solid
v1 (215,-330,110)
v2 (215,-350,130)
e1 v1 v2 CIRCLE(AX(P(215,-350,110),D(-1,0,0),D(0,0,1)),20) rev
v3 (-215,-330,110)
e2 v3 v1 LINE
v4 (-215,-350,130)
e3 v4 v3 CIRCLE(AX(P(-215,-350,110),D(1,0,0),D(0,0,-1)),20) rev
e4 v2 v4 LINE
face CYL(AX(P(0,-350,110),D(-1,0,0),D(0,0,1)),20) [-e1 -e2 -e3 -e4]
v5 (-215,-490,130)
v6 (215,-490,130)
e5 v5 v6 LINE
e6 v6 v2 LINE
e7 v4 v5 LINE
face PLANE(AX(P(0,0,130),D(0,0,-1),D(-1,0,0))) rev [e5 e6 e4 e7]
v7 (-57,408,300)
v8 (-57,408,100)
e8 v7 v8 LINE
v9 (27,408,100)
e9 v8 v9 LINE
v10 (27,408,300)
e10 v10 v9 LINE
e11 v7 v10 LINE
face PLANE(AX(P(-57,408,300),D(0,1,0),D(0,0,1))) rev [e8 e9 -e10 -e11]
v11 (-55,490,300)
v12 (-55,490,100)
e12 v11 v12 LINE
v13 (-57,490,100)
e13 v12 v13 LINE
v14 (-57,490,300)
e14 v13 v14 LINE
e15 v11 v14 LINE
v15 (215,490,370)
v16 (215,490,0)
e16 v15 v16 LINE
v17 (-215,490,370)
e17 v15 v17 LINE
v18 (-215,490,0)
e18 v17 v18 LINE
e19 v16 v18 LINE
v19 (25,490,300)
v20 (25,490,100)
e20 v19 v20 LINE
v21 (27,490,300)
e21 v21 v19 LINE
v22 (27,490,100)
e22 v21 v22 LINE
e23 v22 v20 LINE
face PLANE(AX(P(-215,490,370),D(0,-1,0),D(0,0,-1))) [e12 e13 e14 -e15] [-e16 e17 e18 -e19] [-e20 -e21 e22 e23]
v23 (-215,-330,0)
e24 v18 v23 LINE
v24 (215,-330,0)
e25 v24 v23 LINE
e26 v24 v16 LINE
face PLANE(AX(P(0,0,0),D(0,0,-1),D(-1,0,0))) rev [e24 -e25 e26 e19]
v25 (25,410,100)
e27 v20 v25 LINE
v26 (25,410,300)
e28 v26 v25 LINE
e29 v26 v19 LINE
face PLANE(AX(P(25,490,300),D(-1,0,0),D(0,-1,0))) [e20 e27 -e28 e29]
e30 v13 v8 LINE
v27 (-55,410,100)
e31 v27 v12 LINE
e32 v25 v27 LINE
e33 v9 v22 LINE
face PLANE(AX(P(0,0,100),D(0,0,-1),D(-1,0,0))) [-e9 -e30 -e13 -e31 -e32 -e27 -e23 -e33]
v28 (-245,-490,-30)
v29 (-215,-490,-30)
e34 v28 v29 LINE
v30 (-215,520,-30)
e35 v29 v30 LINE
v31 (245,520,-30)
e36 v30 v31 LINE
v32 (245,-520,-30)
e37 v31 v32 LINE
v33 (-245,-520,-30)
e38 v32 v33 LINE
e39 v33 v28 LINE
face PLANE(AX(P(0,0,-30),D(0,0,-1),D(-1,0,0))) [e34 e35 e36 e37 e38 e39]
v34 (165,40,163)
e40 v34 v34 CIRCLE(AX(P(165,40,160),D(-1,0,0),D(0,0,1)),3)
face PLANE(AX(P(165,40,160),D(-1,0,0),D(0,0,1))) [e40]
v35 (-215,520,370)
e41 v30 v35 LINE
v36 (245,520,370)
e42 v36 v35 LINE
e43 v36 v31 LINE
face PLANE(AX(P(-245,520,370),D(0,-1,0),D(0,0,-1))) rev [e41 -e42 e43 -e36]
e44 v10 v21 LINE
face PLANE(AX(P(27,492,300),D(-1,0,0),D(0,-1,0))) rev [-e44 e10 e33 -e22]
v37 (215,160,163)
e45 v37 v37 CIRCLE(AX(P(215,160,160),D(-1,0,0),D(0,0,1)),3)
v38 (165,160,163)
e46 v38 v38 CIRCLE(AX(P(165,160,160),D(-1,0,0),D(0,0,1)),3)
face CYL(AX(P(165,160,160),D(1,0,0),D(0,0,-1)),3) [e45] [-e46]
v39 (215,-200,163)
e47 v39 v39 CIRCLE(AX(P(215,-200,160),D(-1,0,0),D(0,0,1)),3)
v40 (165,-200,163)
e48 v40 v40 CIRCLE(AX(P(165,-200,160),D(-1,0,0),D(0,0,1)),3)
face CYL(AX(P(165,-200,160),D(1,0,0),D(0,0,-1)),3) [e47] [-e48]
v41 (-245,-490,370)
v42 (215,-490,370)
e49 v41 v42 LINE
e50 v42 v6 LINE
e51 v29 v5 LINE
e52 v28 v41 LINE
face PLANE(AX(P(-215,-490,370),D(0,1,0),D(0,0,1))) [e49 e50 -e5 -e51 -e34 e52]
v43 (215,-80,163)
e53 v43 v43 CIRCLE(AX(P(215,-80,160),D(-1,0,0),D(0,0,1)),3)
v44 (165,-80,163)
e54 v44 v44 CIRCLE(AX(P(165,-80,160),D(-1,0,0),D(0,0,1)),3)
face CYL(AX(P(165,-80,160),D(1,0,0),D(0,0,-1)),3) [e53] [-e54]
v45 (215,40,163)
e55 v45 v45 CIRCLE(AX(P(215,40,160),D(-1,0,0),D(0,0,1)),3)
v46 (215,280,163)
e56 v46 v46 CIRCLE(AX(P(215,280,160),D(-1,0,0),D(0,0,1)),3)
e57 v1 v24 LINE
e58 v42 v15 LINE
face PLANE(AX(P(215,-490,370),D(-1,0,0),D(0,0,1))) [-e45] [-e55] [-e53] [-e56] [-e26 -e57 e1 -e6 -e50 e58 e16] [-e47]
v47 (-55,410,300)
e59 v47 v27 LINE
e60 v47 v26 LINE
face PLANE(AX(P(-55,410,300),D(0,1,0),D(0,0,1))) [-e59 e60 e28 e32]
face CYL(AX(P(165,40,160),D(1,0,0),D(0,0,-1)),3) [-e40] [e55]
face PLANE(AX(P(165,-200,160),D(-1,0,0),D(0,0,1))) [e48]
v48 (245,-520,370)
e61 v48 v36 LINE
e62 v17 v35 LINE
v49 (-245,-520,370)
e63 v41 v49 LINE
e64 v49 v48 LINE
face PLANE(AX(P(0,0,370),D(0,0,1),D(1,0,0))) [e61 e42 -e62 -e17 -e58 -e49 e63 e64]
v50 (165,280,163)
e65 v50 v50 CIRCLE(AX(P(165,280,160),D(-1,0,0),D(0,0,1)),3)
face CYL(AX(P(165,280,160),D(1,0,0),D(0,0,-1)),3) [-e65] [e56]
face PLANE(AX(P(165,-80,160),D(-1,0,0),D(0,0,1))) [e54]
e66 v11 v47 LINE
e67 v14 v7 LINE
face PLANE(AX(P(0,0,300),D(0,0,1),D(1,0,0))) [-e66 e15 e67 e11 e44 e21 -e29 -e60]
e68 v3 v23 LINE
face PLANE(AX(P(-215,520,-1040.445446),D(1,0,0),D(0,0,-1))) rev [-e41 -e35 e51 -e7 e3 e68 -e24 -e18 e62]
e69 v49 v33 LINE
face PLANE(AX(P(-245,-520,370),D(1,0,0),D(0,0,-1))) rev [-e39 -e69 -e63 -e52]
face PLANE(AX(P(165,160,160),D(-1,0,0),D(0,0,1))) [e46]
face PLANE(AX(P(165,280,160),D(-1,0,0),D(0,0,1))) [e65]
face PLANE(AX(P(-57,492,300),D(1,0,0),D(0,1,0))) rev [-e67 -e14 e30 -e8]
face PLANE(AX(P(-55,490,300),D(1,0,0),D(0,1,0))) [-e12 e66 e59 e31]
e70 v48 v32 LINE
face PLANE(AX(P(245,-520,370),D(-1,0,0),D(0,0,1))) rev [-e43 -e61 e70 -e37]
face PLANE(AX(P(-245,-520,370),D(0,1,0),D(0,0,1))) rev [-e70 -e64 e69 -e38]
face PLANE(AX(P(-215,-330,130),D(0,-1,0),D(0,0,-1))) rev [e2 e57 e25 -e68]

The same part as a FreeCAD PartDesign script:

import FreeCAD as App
import Part
import Sketcher
from FreeCAD import Vector
Q = App.Units.Quantity


def edges_at(feature, points):
    """Names of the edges that pass closest to the given points."""
    edges = feature.Shape.Edges
    near = lambda p: min(range(len(edges)), key=lambda i: edges[i].distToShape(Part.Vertex(*p))[0])
    return sorted({f"Edge{near(p) + 1}" for p in points})

doc = App.newDocument("Part")
params = doc.addObject("Spreadsheet::Sheet", "Params")
for row, (alias, value) in enumerate([
    ("sketch1_width", "490 mm"),
    ("sketch1_width2", "430 mm"),
    ("sketch1_height", "1040 mm"),
    ("sketch1_height2", "980 mm"),
    ("pad1_length", "370 mm"),
    ("sketch2_width", "490 mm"),
    ("sketch2_height", "1040 mm"),
    ("pad2_length", "30 mm"),
    ("sketch3_width", "430 mm"),
    ("sketch3_height", "160 mm"),
    ("pad3_length", "130 mm"),
    ("fillet_radius", "20 mm"),
    ("sketch4_width", "30 mm"),
    ("sketch4_height", "1010 mm"),
    ("pocket1_length", "400 mm"),
    ("sketch5_diameter", "6 mm"),
    ("pad4_length", "50 mm"),
    ("sketch6_width", "84 mm"),
    ("sketch6_width2", "80 mm"),
    ("pad5_length", "300 mm"),
    ("sketch7_width", "84 mm"),
    ("sketch7_height", "82 mm"),
    ("pocket2_length", "100 mm"),
], start=1):
    params.set(f"A{row}", alias)
    params.set(f"B{row}", "=" + value)
    params.setAlias(f"B{row}", alias)

body = doc.addObject("PartDesign::Body", "Body")

# Sketch on XY plane
sketch1 = body.newObject("Sketcher::SketchObject", "Sketch")
sketch1.AttachmentSupport = (doc.getObject("XY_Plane"), [""])
sketch1.MapMode = "FlatFace"
sketch1.addGeometry([
    Part.LineSegment(Vector(-245, 520, 0), Vector(-245, -520, 0)),  # 0
    Part.LineSegment(Vector(-245, -520, 0), Vector(245, -520, 0)),  # 1
    Part.LineSegment(Vector(245, -520, 0), Vector(245, 520, 0)),  # 2
    Part.LineSegment(Vector(245, 520, 0), Vector(-245, 520, 0)),  # 3
    Part.LineSegment(Vector(215, -490, 0), Vector(-215, -490, 0)),  # 4
    Part.LineSegment(Vector(-215, -490, 0), Vector(-215, 490, 0)),  # 5
    Part.LineSegment(Vector(-215, 490, 0), Vector(215, 490, 0)),  # 6
    Part.LineSegment(Vector(215, 490, 0), Vector(215, -490, 0)),  # 7
], False)
sketch1.addConstraint([
    Sketcher.Constraint("Coincident", 0, 2, 1, 1),
    Sketcher.Constraint("Coincident", 1, 2, 2, 1),
    Sketcher.Constraint("Coincident", 2, 2, 3, 1),
    Sketcher.Constraint("Coincident", 3, 2, 0, 1),
    Sketcher.Constraint("Coincident", 4, 2, 5, 1),
    Sketcher.Constraint("Coincident", 5, 2, 6, 1),
    Sketcher.Constraint("Coincident", 6, 2, 7, 1),
    Sketcher.Constraint("Coincident", 7, 2, 4, 1),
    Sketcher.Constraint("Vertical", 0),
    Sketcher.Constraint("Horizontal", 1),
    Sketcher.Constraint("Vertical", 2),
    Sketcher.Constraint("Horizontal", 3),
    Sketcher.Constraint("Horizontal", 4),
    Sketcher.Constraint("Vertical", 5),
    Sketcher.Constraint("Horizontal", 6),
    Sketcher.Constraint("Vertical", 7),
    Sketcher.Constraint("Symmetric", 0, 2, 2, 2, -1, 1),
    Sketcher.Constraint("Symmetric", 4, 2, 6, 2, -1, 1),
    Sketcher.Constraint("DistanceX", 1, 1, 1, 2, Q("490 mm")),
    Sketcher.Constraint("DistanceX", 4, 2, 4, 1, Q("430 mm")),
    Sketcher.Constraint("DistanceY", 0, 2, 0, 1, Q("1040 mm")),
    Sketcher.Constraint("DistanceY", 5, 1, 5, 2, Q("980 mm")),
])
sketch1.setExpression("Constraints[18]", "Params.sketch1_width")
sketch1.setExpression("Constraints[19]", "Params.sketch1_width2")
sketch1.setExpression("Constraints[20]", "Params.sketch1_height")
sketch1.setExpression("Constraints[21]", "Params.sketch1_height2")
pad1 = body.newObject("PartDesign::Pad", "Pad")
pad1.Profile = sketch1
pad1.setExpression("Length", "Params.pad1_length")

# Sketch on XY plane
sketch2 = body.newObject("Sketcher::SketchObject", "Sketch001")
sketch2.AttachmentSupport = (doc.getObject("XY_Plane"), [""])
sketch2.MapMode = "FlatFace"
sketch2.addGeometry([
    Part.LineSegment(Vector(245, 520, 0), Vector(245, -520, 0)),
    Part.LineSegment(Vector(245, -520, 0), Vector(-245, -520, 0)),
    Part.LineSegment(Vector(-245, -520, 0), Vector(-245, 520, 0)),
    Part.LineSegment(Vector(-245, 520, 0), Vector(245, 520, 0)),
], False)
sketch2.addConstraint([
    Sketcher.Constraint("Coincident", 0, 2, 1, 1),
    Sketcher.Constraint("Coincident", 1, 2, 2, 1),
    Sketcher.Constraint("Coincident", 2, 2, 3, 1),
    Sketcher.Constraint("Coincident", 3, 2, 0, 1),
    Sketcher.Constraint("Vertical", 0),
    Sketcher.Constraint("Horizontal", 1),
    Sketcher.Constraint("Vertical", 2),
    Sketcher.Constraint("Horizontal", 3),
    Sketcher.Constraint("Symmetric", 0, 2, 2, 2, -1, 1),
    Sketcher.Constraint("DistanceX", 1, 2, 1, 1, Q("490 mm")),
    Sketcher.Constraint("DistanceY", 0, 2, 0, 1, Q("1040 mm")),
])
sketch2.setExpression("Constraints[9]", "Params.sketch2_width")
sketch2.setExpression("Constraints[10]", "Params.sketch2_height")
pad2 = body.newObject("PartDesign::Pad", "Pad001")
pad2.Profile = sketch2
pad2.setExpression("Length", "Params.pad2_length")
pad2.Reversed = True

# Sketch on XY plane
sketch3 = body.newObject("Sketcher::SketchObject", "Sketch002")
sketch3.AttachmentSupport = (doc.getObject("XY_Plane"), [""])
sketch3.MapMode = "FlatFace"
sketch3.addGeometry([
    Part.LineSegment(Vector(-215, -330, 0), Vector(-215, -490, 0)),
    Part.LineSegment(Vector(-215, -490, 0), Vector(215, -490, 0)),
    Part.LineSegment(Vector(215, -490, 0), Vector(215, -330, 0)),
    Part.LineSegment(Vector(215, -330, 0), Vector(-215, -330, 0)),
], False)
sketch3.addConstraint([
    Sketcher.Constraint("Coincident", 0, 2, 1, 1),
    Sketcher.Constraint("Coincident", 1, 2, 2, 1),
    Sketcher.Constraint("Coincident", 2, 2, 3, 1),
    Sketcher.Constraint("Coincident", 3, 2, 0, 1),
    Sketcher.Constraint("Vertical", 0),
    Sketcher.Constraint("Horizontal", 1),
    Sketcher.Constraint("Vertical", 2),
    Sketcher.Constraint("Horizontal", 3),
    Sketcher.Constraint("DistanceX", 1, 1, 1, 2, Q("430 mm")),
    Sketcher.Constraint("DistanceY", 0, 2, 0, 1, Q("160 mm")),
    Sketcher.Constraint("DistanceX", 0, 2, -1, 1, Q("215 mm")),
    Sketcher.Constraint("DistanceY", 0, 2, -1, 1, Q("490 mm")),
])
sketch3.setExpression("Constraints[8]", "Params.sketch3_width")
sketch3.setExpression("Constraints[9]", "Params.sketch3_height")
pad3 = body.newObject("PartDesign::Pad", "Pad002")
pad3.Profile = sketch3
pad3.setExpression("Length", "Params.pad3_length")
doc.recompute()

fillet = body.newObject("PartDesign::Fillet", "Fillet")
fillet.Base = (pad3, edges_at(pad3, [(0, -330, 130)]))
fillet.setExpression("Radius", "Params.fillet_radius")

# Sketch on XY plane
sketch4 = body.newObject("Sketcher::SketchObject", "Sketch003")
sketch4.AttachmentSupport = (doc.getObject("XY_Plane"), [""])
sketch4.MapMode = "FlatFace"
sketch4.AttachmentOffset = App.Placement(Vector(0, 0, 370), App.Rotation())
sketch4.addGeometry([
    Part.LineSegment(Vector(-245, 520, 0), Vector(-245, -490, 0)),
    Part.LineSegment(Vector(-245, -490, 0), Vector(-215, -490, 0)),
    Part.LineSegment(Vector(-215, -490, 0), Vector(-215, 520, 0)),
    Part.LineSegment(Vector(-215, 520, 0), Vector(-245, 520, 0)),
], False)
sketch4.addConstraint([
    Sketcher.Constraint("Coincident", 0, 2, 1, 1),
    Sketcher.Constraint("Coincident", 1, 2, 2, 1),
    Sketcher.Constraint("Coincident", 2, 2, 3, 1),
    Sketcher.Constraint("Coincident", 3, 2, 0, 1),
    Sketcher.Constraint("Vertical", 0),
    Sketcher.Constraint("Horizontal", 1),
    Sketcher.Constraint("Vertical", 2),
    Sketcher.Constraint("Horizontal", 3),
    Sketcher.Constraint("DistanceX", 1, 1, 1, 2, Q("30 mm")),
    Sketcher.Constraint("DistanceY", 0, 2, 0, 1, Q("1010 mm")),
    Sketcher.Constraint("DistanceX", 0, 2, -1, 1, Q("245 mm")),
    Sketcher.Constraint("DistanceY", 0, 2, -1, 1, Q("490 mm")),
])
sketch4.setExpression("Constraints[8]", "Params.sketch4_width")
sketch4.setExpression("Constraints[9]", "Params.sketch4_height")
pocket1 = body.newObject("PartDesign::Pocket", "Pocket")
pocket1.Profile = sketch4
pocket1.setExpression("Length", "Params.pocket1_length")

# Sketch on YZ plane
sketch5 = body.newObject("Sketcher::SketchObject", "Sketch004")
sketch5.AttachmentSupport = (doc.getObject("YZ_Plane"), [""])
sketch5.MapMode = "FlatFace"
sketch5.AttachmentOffset = App.Placement(Vector(0, 0, 215), App.Rotation())
sketch5.addGeometry([
    Part.Circle(Vector(280, 160, 0), Vector(0, 0, 1), 3),  # 0
    Part.Circle(Vector(160, 160, 0), Vector(0, 0, 1), 3),  # 1
    Part.Circle(Vector(40, 160, 0), Vector(0, 0, 1), 3),  # 2
    Part.Circle(Vector(-80, 160, 0), Vector(0, 0, 1), 3),  # 3
    Part.Circle(Vector(-200, 160, 0), Vector(0, 0, 1), 3),  # 4
], False)
sketch5.addConstraint([
    Sketcher.Constraint("Equal", 0, 1),
    Sketcher.Constraint("Equal", 1, 2),
    Sketcher.Constraint("Equal", 2, 3),
    Sketcher.Constraint("Equal", 3, 4),
    Sketcher.Constraint("Horizontal", 0, 3, 1, 3),
    Sketcher.Constraint("Horizontal", 1, 3, 2, 3),
    Sketcher.Constraint("Horizontal", 2, 3, 3, 3),
    Sketcher.Constraint("Horizontal", 3, 3, 4, 3),
    Sketcher.Constraint("Diameter", 0, Q("6 mm")),
    Sketcher.Constraint("DistanceX", -1, 1, 0, 3, Q("280 mm")),
    Sketcher.Constraint("DistanceY", -1, 1, 0, 3, Q("160 mm")),
    Sketcher.Constraint("DistanceX", -1, 1, 1, 3, Q("160 mm")),
    Sketcher.Constraint("DistanceX", -1, 1, 2, 3, Q("40 mm")),
    Sketcher.Constraint("DistanceX", 3, 3, -1, 1, Q("80 mm")),
    Sketcher.Constraint("DistanceX", 4, 3, -1, 1, Q("200 mm")),
])
sketch5.setExpression("Constraints[8]", "Params.sketch5_diameter")
pad4 = body.newObject("PartDesign::Pad", "Pad003")
pad4.Profile = sketch5
pad4.setExpression("Length", "Params.pad4_length")
pad4.Reversed = True

# Sketch on XY plane
sketch6 = body.newObject("Sketcher::SketchObject", "Sketch005")
sketch6.AttachmentSupport = (doc.getObject("XY_Plane"), [""])
sketch6.MapMode = "FlatFace"
sketch6.addGeometry([
    Part.LineSegment(Vector(-57, 492, 0), Vector(-57, 408, 0)),  # 0
    Part.LineSegment(Vector(-57, 408, 0), Vector(27, 408, 0)),  # 1
    Part.LineSegment(Vector(27, 408, 0), Vector(27, 492, 0)),  # 2
    Part.LineSegment(Vector(27, 492, 0), Vector(-57, 492, 0)),  # 3
    Part.LineSegment(Vector(25, 410, 0), Vector(-55, 410, 0)),  # 4
    Part.LineSegment(Vector(-55, 410, 0), Vector(-55, 490, 0)),  # 5
    Part.LineSegment(Vector(-55, 490, 0), Vector(25, 490, 0)),  # 6
    Part.LineSegment(Vector(25, 490, 0), Vector(25, 410, 0)),  # 7
], False)
sketch6.addConstraint([
    Sketcher.Constraint("Coincident", 0, 2, 1, 1),
    Sketcher.Constraint("Coincident", 1, 2, 2, 1),
    Sketcher.Constraint("Coincident", 2, 2, 3, 1),
    Sketcher.Constraint("Coincident", 3, 2, 0, 1),
    Sketcher.Constraint("Coincident", 4, 2, 5, 1),
    Sketcher.Constraint("Coincident", 5, 2, 6, 1),
    Sketcher.Constraint("Coincident", 6, 2, 7, 1),
    Sketcher.Constraint("Coincident", 7, 2, 4, 1),
    Sketcher.Constraint("Vertical", 0),
    Sketcher.Constraint("Horizontal", 1),
    Sketcher.Constraint("Vertical", 2),
    Sketcher.Constraint("Horizontal", 3),
    Sketcher.Constraint("Horizontal", 4),
    Sketcher.Constraint("Vertical", 5),
    Sketcher.Constraint("Horizontal", 6),
    Sketcher.Constraint("Vertical", 7),
    Sketcher.Constraint("Equal", 3, 0),
    Sketcher.Constraint("Equal", 6, 5),
    Sketcher.Constraint("DistanceX", 1, 1, 1, 2, Q("84 mm")),
    Sketcher.Constraint("DistanceX", 4, 2, 4, 1, Q("80 mm")),
    Sketcher.Constraint("DistanceX", 0, 2, -1, 1, Q("57 mm")),
    Sketcher.Constraint("DistanceY", -1, 1, 0, 2, Q("408 mm")),
    Sketcher.Constraint("DistanceX", 4, 2, -1, 1, Q("55 mm")),
    Sketcher.Constraint("DistanceY", -1, 1, 4, 2, Q("410 mm")),
])
sketch6.setExpression("Constraints[18]", "Params.sketch6_width")
sketch6.setExpression("Constraints[19]", "Params.sketch6_width2")
pad5 = body.newObject("PartDesign::Pad", "Pad004")
pad5.Profile = sketch6
pad5.setExpression("Length", "Params.pad5_length")

# Sketch on XY plane
sketch7 = body.newObject("Sketcher::SketchObject", "Sketch006")
sketch7.AttachmentSupport = (doc.getObject("XY_Plane"), [""])
sketch7.MapMode = "FlatFace"
sketch7.addGeometry([
    Part.LineSegment(Vector(-57, 490, 0), Vector(-57, 408, 0)),
    Part.LineSegment(Vector(-57, 408, 0), Vector(27, 408, 0)),
    Part.LineSegment(Vector(27, 408, 0), Vector(27, 490, 0)),
    Part.LineSegment(Vector(27, 490, 0), Vector(-57, 490, 0)),
], False)
sketch7.addConstraint([
    Sketcher.Constraint("Coincident", 0, 2, 1, 1),
    Sketcher.Constraint("Coincident", 1, 2, 2, 1),
    Sketcher.Constraint("Coincident", 2, 2, 3, 1),
    Sketcher.Constraint("Coincident", 3, 2, 0, 1),
    Sketcher.Constraint("Vertical", 0),
    Sketcher.Constraint("Horizontal", 1),
    Sketcher.Constraint("Vertical", 2),
    Sketcher.Constraint("Horizontal", 3),
    Sketcher.Constraint("DistanceX", 1, 1, 1, 2, Q("84 mm")),
    Sketcher.Constraint("DistanceY", 0, 2, 0, 1, Q("82 mm")),
    Sketcher.Constraint("DistanceX", 0, 2, -1, 1, Q("57 mm")),
    Sketcher.Constraint("DistanceY", -1, 1, 0, 2, Q("408 mm")),
])
sketch7.setExpression("Constraints[8]", "Params.sketch7_width")
sketch7.setExpression("Constraints[9]", "Params.sketch7_height")
pocket2 = body.newObject("PartDesign::Pocket", "Pocket001")
pocket2.Profile = sketch7
pocket2.setExpression("Length", "Params.pocket2_length")
pocket2.Reversed = True

doc.recompute()
